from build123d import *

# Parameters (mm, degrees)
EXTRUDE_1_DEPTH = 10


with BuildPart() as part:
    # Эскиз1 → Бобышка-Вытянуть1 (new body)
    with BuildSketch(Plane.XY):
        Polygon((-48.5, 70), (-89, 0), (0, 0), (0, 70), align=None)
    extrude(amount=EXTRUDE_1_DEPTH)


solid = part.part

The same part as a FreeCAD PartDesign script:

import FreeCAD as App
import Part
import Sketcher
from FreeCAD import Vector
Q = App.Units.Quantity

doc = App.newDocument("Part")
body = doc.addObject("PartDesign::Body", "Body")

# Sketch on XY plane
sketch1 = body.newObject("Sketcher::SketchObject", "Sketch")
sketch1.AttachmentSupport = (doc.getObject("XY_Plane"), [""])
sketch1.MapMode = "FlatFace"
sketch1.addGeometry([
    Part.LineSegment(Vector(-48, 70, 0), Vector(-89, 0, 0)),
    Part.LineSegment(Vector(-89, 0, 0), Vector(0, 0, 0)),
    Part.LineSegment(Vector(0, 0, 0), Vector(0, 70, 0)),
    Part.LineSegment(Vector(0, 70, 0), Vector(-48, 70, 0)),
], False)
sketch1.addConstraint([
    Sketcher.Constraint("Coincident", 0, 2, 1, 1),
    Sketcher.Constraint("Coincident", 1, 2, 2, 1),
    Sketcher.Constraint("Coincident", 2, 2, 3, 1),
    Sketcher.Constraint("Coincident", 3, 2, 0, 1),
    Sketcher.Constraint("Horizontal", 1),
    Sketcher.Constraint("Vertical", 2),
    Sketcher.Constraint("Horizontal", 3),
    Sketcher.Constraint("Coincident", 1, 2, -1, 1),
    Sketcher.Constraint("DistanceX", 1, 1, 1, 2, Q("89 mm")),
    Sketcher.Constraint("DistanceY", 2, 1, 2, 2, Q("70 mm")),
    Sketcher.Constraint("DistanceX", 3, 2, 3, 1, Q("48.5 mm")),
])
pad1 = body.newObject("PartDesign::Pad", "Pad")
pad1.Profile = sketch1
pad1.Length = 10

doc.recompute()
